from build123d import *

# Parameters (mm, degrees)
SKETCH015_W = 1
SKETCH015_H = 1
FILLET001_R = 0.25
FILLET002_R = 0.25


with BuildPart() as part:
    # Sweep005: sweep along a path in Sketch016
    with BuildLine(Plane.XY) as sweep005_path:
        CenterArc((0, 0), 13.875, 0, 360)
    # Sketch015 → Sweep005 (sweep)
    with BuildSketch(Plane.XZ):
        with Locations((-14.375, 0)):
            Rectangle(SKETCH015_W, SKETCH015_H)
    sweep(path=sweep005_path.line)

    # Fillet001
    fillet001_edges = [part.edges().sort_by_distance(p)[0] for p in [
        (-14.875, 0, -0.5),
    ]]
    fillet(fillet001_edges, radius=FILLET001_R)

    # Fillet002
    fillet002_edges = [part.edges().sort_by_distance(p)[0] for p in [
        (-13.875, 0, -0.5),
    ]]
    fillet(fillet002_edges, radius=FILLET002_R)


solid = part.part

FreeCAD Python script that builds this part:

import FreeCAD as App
import Part
import Sketcher

V = App.Vector


def edges_at(feature, points):
    """Names of the edges that pass closest to the given points."""
    edges = feature.Shape.Edges
    near = lambda p: min(range(len(edges)), key=lambda i: edges[i].distToShape(Part.Vertex(*p))[0])
    return sorted({f"Edge{near(p) + 1}" for p in points})


def add_polygon(sketch, points):
    """Adds a closed chain of lines whose ends are joined by coincident constraints."""
    first, n = sketch.GeometryCount, len(points)
    for a, b in zip(points, points[1:] + points[:1]):
        sketch.addGeometry(Part.LineSegment(App.Vector(*a, 0), App.Vector(*b, 0)), False)
    for i in range(n):
        sketch.addConstraint(Sketcher.Constraint("Coincident", first + i, 2, first + (i + 1) % n, 1))

doc = App.newDocument("Part")
body = doc.addObject("PartDesign::Body", "Body")

sketch1 = body.newObject("Sketcher::SketchObject", "Sketch")
sketch1.AttachmentSupport = (doc.getObject("XZ_Plane"), [""])
sketch1.MapMode = "FlatFace"
add_polygon(sketch1, [(-14.9, 0.5), (-14.9, -0.5), (-13.9, -0.5), (-13.9, 0.5)])
sketch1.addConstraint([
    Sketcher.Constraint("Vertical", 0),
    Sketcher.Constraint("Horizontal", 1),
    Sketcher.Constraint("Vertical", 2),
    Sketcher.Constraint("Horizontal", 3),
    Sketcher.Constraint("Equal", 3, 0),
    Sketcher.Constraint("DistanceX", 1, 1, 1, 2, 1.0),
    Sketcher.Constraint("DistanceY", 0, 2, -1, 1, 0.5),
    Sketcher.Constraint("DistanceX", 0, 2, -1, 1, 14.875),
])

sketch2 = body.newObject("Sketcher::SketchObject", "Sketch001")
sketch2.AttachmentSupport = (doc.getObject("XY_Plane"), [""])
sketch2.MapMode = "FlatFace"
sketch2.addGeometry(Part.Circle(V(0, 0, 0), V(0, 0, 1), 14), False)
sketch2.addConstraint([
    Sketcher.Constraint("Coincident", 0, 3, -1, 1),
    Sketcher.Constraint("Diameter", 0, 27.75),
])
doc.recompute()

additivepipe = body.newObject("PartDesign::AdditivePipe", "AdditivePipe")
additivepipe.Profile = sketch1
additivepipe.Spine = (sketch2, ["Edge1"])
doc.recompute()

fillet = body.newObject("PartDesign::Fillet", "Fillet")
fillet.Base = (additivepipe, edges_at(additivepipe, [(-14.875, 0, -0.5)]))
fillet.Radius = 0.25
doc.recompute()

fillet2 = body.newObject("PartDesign::Fillet", "Fillet001")
fillet2.Base = (fillet, edges_at(fillet, [(-13.875, 0, -0.5)]))
fillet2.Radius = 0.25

doc.recompute()
